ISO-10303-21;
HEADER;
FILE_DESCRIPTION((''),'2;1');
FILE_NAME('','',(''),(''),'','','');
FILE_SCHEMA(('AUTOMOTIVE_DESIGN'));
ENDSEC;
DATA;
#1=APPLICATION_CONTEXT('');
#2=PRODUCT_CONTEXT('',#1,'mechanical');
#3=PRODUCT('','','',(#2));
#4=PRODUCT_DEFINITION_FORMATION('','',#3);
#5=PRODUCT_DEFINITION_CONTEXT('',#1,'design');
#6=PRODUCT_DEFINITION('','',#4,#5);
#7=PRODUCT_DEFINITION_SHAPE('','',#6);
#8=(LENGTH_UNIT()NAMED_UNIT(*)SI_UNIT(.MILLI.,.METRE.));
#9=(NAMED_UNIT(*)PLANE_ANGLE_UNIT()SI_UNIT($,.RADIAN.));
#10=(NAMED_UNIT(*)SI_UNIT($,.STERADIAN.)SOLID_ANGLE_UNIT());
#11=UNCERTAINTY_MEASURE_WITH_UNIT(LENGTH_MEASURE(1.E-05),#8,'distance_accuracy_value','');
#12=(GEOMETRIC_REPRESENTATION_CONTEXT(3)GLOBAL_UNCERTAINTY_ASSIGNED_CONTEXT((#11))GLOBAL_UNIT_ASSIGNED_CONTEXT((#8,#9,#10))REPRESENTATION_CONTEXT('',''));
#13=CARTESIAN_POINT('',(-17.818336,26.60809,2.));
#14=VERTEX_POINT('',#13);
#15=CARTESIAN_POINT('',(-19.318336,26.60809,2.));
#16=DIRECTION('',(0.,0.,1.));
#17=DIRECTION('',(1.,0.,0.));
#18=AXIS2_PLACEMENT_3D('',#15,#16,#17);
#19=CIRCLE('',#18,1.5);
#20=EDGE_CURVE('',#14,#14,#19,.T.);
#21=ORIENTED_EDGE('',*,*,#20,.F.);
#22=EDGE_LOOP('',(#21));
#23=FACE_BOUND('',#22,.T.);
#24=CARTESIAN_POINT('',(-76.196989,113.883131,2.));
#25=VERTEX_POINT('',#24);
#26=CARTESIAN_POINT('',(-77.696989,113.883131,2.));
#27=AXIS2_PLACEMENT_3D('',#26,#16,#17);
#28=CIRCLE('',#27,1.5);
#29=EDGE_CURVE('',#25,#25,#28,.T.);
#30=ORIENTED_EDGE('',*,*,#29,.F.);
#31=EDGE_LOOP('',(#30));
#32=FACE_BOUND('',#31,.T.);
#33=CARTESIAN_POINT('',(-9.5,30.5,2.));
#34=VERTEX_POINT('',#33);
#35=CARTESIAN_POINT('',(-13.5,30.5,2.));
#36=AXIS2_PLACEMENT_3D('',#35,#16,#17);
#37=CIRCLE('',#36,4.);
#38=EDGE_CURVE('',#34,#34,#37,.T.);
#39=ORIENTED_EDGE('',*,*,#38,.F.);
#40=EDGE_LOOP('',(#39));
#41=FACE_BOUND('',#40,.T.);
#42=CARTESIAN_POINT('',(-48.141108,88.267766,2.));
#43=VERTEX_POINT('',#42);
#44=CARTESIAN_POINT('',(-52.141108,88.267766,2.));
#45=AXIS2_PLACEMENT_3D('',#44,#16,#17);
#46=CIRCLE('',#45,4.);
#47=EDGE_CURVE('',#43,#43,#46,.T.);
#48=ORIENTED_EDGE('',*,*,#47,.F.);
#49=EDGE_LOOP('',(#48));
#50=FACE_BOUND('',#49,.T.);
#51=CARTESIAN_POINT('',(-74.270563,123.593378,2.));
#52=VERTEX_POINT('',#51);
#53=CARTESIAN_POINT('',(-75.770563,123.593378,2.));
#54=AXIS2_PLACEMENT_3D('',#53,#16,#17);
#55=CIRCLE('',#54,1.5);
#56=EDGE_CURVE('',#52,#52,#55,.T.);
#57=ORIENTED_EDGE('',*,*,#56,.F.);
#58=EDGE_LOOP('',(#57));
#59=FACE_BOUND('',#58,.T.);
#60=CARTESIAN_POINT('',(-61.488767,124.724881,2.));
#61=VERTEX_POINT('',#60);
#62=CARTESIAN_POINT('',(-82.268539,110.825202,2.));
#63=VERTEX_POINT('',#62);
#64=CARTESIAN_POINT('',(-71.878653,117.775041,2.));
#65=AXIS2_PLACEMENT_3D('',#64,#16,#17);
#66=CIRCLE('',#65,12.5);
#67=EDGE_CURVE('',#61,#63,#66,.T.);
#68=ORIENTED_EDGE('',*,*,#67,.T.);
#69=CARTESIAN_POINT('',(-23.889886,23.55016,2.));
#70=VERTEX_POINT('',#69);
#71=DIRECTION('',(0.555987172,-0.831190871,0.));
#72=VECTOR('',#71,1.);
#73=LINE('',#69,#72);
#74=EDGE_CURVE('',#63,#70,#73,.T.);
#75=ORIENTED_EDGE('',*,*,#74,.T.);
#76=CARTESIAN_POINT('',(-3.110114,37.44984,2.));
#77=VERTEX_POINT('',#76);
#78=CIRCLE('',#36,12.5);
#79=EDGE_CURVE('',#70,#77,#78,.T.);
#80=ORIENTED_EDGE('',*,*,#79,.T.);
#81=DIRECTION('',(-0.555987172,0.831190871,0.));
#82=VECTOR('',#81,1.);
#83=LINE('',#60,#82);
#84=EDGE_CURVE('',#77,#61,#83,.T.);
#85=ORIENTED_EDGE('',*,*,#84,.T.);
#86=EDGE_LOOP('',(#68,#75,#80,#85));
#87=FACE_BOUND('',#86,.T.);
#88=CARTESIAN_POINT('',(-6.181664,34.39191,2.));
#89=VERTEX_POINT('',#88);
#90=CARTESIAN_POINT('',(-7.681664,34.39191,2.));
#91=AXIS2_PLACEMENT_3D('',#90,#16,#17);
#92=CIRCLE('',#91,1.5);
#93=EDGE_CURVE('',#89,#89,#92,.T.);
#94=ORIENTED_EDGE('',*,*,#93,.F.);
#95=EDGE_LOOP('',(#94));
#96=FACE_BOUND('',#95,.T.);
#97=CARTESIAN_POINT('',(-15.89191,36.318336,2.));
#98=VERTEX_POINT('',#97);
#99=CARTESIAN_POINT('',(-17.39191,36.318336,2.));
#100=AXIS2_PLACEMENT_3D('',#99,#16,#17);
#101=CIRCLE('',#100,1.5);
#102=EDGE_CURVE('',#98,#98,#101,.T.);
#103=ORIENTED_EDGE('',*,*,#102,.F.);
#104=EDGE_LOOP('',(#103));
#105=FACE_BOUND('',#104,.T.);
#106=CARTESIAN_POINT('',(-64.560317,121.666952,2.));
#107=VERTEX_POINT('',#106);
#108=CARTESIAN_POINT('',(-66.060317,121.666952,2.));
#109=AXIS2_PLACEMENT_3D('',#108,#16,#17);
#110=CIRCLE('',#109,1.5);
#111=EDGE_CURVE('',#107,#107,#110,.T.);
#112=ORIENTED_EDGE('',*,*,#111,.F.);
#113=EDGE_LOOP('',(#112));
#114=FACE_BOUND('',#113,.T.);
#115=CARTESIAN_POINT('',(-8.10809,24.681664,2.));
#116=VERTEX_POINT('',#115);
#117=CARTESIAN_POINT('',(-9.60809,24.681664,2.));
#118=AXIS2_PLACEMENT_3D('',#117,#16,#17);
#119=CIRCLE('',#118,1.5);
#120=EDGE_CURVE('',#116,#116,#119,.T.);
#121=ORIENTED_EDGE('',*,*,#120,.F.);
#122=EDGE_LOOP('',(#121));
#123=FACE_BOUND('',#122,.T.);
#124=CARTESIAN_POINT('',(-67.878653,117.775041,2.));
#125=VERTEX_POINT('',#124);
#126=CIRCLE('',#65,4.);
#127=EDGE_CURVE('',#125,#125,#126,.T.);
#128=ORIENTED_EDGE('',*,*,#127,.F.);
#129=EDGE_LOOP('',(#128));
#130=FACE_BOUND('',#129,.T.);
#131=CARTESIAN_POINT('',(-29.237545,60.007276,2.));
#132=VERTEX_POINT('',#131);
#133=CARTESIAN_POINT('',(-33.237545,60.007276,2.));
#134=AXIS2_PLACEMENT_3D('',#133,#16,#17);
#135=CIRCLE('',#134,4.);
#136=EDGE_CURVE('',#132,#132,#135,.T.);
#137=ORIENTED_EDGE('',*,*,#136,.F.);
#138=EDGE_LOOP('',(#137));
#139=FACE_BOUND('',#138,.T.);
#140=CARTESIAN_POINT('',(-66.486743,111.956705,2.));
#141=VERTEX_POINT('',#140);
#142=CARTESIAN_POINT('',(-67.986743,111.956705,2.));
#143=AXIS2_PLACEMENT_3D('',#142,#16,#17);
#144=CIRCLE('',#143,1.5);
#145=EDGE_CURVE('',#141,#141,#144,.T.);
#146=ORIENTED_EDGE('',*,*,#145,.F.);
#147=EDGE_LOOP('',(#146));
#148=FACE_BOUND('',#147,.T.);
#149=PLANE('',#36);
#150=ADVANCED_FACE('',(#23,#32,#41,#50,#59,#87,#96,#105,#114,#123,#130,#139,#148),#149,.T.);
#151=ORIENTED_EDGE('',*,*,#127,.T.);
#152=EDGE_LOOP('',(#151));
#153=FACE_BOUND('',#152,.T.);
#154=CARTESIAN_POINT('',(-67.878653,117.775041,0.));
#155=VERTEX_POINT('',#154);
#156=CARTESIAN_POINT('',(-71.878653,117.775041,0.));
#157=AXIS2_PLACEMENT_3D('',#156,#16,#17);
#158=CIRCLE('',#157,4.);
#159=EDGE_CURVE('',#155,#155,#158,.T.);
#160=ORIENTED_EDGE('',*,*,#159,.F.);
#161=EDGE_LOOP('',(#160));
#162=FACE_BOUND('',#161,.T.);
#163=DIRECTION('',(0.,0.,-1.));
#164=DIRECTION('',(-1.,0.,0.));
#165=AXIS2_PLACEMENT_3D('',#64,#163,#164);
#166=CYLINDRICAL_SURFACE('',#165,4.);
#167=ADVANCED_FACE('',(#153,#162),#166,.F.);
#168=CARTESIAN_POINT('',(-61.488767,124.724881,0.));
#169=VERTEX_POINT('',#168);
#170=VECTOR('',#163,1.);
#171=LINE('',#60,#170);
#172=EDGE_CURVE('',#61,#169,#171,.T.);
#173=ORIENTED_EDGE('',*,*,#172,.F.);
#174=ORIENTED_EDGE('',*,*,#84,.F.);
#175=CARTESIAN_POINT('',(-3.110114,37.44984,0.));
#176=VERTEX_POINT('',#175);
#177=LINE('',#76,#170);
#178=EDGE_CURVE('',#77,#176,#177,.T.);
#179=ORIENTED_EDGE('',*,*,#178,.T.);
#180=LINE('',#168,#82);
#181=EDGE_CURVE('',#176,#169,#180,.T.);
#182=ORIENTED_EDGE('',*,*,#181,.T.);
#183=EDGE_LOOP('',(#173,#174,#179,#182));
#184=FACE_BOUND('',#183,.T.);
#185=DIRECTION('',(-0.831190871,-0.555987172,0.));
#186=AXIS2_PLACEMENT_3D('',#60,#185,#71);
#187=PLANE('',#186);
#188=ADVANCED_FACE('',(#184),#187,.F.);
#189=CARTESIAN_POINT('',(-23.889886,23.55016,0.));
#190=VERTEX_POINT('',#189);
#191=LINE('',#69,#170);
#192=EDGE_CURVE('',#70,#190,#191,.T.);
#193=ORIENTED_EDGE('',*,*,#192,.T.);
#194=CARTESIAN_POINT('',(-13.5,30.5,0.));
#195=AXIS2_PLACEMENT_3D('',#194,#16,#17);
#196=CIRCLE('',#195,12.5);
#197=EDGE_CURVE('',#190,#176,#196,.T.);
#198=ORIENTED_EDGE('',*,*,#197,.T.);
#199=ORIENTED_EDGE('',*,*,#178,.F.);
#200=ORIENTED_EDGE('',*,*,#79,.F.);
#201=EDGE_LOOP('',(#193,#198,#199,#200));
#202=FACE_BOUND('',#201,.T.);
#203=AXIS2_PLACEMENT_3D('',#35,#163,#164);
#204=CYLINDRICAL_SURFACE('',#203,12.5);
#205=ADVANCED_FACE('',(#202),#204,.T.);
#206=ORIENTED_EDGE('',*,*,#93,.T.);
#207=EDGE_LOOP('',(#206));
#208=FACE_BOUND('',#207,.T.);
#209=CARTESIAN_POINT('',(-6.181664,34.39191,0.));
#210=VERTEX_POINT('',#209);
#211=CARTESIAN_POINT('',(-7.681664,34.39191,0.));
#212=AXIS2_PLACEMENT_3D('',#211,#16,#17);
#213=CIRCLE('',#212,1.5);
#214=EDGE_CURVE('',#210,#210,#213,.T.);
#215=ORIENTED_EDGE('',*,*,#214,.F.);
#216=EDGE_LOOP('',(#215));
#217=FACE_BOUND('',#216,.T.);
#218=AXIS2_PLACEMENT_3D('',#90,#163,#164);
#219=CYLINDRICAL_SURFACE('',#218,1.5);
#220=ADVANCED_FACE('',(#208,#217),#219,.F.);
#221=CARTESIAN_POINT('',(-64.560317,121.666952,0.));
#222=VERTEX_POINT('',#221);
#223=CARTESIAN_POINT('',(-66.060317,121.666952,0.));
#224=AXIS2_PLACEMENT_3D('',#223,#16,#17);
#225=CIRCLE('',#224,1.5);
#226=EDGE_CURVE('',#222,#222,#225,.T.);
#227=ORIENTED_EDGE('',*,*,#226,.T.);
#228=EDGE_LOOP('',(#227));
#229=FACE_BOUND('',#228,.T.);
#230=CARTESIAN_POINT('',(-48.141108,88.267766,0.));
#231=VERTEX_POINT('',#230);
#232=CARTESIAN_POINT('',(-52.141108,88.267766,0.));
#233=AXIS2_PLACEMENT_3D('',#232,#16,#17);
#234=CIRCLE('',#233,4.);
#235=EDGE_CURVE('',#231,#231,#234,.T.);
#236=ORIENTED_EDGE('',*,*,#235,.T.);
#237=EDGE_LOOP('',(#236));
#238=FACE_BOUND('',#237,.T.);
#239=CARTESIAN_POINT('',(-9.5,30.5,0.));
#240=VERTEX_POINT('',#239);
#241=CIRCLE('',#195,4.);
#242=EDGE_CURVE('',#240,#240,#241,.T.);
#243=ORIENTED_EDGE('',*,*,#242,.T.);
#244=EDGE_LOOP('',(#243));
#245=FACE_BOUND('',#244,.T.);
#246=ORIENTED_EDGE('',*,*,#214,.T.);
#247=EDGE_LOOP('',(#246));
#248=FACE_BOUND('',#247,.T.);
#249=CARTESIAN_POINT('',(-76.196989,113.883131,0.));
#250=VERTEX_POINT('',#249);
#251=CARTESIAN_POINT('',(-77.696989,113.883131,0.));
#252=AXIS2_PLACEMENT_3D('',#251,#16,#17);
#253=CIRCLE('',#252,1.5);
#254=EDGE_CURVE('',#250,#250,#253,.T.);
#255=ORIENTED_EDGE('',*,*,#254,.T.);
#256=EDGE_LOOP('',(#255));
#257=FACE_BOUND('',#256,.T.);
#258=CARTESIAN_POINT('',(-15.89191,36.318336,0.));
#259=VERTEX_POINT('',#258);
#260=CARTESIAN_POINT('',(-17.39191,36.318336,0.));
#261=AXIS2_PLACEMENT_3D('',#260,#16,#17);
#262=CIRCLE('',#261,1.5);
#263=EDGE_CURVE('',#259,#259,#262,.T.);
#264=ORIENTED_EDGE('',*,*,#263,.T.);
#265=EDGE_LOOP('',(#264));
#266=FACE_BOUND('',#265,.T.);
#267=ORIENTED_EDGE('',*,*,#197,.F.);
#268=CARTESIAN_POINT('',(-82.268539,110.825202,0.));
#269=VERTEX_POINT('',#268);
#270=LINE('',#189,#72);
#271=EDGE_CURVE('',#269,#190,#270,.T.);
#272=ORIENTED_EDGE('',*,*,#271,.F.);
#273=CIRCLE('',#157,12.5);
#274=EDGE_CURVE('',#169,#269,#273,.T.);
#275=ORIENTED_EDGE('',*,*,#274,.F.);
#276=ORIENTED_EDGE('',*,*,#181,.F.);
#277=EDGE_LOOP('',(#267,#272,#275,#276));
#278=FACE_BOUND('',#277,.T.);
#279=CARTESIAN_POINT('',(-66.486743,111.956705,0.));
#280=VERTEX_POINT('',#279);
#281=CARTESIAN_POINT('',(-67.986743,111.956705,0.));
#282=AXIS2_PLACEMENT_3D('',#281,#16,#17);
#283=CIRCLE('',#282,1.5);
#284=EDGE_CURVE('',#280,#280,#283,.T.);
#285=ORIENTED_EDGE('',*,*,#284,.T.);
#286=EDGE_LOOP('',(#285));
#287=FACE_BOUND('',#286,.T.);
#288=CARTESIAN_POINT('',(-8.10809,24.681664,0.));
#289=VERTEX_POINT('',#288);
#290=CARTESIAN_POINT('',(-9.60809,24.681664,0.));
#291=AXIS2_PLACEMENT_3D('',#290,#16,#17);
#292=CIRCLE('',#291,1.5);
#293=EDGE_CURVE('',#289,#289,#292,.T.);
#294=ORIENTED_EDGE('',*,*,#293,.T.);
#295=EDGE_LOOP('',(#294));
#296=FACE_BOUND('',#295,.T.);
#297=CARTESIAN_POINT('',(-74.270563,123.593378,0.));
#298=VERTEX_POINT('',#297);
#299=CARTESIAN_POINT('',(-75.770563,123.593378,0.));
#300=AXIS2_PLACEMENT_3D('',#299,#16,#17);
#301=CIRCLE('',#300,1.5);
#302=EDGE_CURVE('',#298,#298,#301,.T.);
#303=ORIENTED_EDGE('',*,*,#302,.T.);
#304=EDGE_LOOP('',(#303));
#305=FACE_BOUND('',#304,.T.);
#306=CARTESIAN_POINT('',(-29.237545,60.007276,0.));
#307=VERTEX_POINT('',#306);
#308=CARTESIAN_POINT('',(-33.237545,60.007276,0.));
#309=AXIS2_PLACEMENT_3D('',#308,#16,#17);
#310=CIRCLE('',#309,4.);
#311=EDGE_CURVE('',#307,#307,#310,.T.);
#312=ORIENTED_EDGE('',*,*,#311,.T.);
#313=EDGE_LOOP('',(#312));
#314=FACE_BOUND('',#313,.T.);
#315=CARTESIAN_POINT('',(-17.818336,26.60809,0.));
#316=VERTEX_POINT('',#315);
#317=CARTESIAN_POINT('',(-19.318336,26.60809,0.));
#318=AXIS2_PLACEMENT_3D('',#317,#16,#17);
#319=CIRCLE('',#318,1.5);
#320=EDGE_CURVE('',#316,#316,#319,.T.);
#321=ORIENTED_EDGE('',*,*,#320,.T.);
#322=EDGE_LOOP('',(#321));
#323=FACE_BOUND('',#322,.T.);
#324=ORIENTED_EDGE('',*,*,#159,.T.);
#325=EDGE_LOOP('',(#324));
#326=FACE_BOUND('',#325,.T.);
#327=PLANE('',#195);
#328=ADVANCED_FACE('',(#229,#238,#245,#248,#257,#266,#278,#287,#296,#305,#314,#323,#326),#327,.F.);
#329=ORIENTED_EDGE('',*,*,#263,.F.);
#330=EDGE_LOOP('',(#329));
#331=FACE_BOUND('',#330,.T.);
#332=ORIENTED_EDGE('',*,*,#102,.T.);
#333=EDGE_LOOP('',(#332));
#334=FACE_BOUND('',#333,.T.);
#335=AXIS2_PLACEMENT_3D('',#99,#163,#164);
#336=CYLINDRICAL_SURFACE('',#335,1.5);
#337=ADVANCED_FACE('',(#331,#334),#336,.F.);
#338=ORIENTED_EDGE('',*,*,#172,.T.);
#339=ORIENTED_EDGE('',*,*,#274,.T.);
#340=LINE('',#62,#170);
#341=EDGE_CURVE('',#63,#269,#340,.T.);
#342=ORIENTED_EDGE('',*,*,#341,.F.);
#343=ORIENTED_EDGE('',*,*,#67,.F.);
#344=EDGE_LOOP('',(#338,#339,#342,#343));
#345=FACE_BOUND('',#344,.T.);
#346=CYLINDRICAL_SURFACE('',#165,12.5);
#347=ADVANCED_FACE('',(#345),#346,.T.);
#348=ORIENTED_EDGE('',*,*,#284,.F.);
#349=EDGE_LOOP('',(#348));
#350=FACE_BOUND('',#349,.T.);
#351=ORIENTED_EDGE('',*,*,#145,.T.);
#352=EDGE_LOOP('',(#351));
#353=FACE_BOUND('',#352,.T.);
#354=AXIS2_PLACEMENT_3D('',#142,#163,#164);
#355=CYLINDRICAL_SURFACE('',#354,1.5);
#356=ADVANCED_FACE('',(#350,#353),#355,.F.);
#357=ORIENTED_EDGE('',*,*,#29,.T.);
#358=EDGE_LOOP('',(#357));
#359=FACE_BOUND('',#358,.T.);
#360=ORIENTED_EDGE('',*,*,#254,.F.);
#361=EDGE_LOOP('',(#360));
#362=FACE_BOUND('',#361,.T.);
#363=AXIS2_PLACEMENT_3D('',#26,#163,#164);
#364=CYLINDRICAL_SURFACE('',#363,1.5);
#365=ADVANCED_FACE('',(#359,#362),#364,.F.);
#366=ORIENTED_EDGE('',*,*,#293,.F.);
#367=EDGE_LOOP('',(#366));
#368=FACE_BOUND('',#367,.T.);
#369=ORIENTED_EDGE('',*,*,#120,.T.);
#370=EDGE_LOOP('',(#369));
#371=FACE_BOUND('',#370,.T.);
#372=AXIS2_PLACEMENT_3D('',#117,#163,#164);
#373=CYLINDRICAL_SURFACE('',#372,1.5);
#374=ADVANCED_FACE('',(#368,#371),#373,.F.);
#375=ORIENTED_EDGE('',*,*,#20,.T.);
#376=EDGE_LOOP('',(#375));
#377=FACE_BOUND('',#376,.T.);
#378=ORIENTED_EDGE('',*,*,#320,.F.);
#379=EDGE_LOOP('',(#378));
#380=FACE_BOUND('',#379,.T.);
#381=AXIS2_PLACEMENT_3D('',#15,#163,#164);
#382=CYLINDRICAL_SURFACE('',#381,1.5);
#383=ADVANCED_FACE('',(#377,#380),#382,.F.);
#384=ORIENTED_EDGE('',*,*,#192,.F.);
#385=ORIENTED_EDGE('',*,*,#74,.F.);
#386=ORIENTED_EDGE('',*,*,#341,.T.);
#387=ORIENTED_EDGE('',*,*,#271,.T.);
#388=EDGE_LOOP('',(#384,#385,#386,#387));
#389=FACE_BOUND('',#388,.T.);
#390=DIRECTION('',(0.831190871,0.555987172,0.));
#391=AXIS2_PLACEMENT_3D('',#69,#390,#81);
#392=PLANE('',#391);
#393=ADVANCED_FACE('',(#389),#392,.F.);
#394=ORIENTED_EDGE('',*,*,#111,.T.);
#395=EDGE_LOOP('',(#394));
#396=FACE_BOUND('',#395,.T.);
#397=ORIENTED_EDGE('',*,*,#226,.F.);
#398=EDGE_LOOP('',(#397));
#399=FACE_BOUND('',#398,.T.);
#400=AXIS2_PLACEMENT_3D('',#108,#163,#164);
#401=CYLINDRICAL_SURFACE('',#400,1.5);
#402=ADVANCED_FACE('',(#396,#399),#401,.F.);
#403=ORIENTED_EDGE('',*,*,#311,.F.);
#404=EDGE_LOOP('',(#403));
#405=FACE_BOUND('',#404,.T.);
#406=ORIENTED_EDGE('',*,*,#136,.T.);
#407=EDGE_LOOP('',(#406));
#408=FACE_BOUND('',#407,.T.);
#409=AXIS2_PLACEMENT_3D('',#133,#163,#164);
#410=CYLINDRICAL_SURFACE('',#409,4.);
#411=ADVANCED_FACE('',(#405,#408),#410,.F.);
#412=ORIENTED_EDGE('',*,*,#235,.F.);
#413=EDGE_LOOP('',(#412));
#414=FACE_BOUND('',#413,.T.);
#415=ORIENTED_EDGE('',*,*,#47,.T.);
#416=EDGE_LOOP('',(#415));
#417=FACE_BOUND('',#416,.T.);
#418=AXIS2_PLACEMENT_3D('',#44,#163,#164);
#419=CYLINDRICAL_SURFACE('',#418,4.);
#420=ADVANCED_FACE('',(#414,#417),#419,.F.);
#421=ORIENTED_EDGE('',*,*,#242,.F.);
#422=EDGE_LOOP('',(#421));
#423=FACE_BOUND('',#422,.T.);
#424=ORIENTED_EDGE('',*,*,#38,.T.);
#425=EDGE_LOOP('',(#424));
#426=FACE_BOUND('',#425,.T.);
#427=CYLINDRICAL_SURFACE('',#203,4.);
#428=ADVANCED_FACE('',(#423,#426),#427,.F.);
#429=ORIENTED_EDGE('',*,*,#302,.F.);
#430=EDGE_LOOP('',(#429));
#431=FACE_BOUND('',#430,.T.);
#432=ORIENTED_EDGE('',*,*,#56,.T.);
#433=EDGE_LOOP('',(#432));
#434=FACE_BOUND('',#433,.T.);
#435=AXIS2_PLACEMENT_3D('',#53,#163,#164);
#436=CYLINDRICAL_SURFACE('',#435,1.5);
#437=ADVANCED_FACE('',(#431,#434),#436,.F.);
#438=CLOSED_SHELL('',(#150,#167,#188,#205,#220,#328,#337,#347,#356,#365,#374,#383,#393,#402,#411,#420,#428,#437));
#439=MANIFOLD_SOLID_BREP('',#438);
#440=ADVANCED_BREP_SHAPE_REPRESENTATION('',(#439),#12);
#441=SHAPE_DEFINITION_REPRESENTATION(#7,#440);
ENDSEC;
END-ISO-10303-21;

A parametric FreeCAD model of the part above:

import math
import FreeCAD as App
import Part
import Sketcher

V = App.Vector
Q = App.Units.Quantity

doc = App.newDocument("Part")
body = doc.addObject("PartDesign::Body", "Body")

sketch1 = body.newObject("Sketcher::SketchObject", "Sketch")
sketch1.AttachmentSupport = (doc.getObject("XY_Plane"), [""])
sketch1.MapMode = "FlatFace"
sketch1.addGeometry([
    Part.LineSegment(V(-3.110114, 37.44984, 0), V(-61.488767, 124.724881, 0)),
    Part.ArcOfCircle(Part.Circle(V(-71.878653, 117.775041, 0), V(0, 0, 1), 12.5), math.radians(33.778736), math.radians(213.778736)),
    Part.LineSegment(V(-82.268539, 110.825202, 0), V(-23.889886, 23.55016, 0)),
    Part.ArcOfCircle(Part.Circle(V(-13.5, 30.5, 0), V(0, 0, 1), 12.5), math.radians(-146.221264), math.radians(33.778736)),
    Part.Circle(V(-9.60809, 24.681664, 0), V(0, 0, 1), 1.5),
    Part.Circle(V(-7.681664, 34.39191, 0), V(0, 0, 1), 1.5),
    Part.Circle(V(-13.5, 30.5, 0), V(0, 0, 1), 4),
    Part.Circle(V(-19.318336, 26.60809, 0), V(0, 0, 1), 1.5),
    Part.Circle(V(-17.39191, 36.318336, 0), V(0, 0, 1), 1.5),
    Part.Circle(V(-33.237545, 60.007276, 0), V(0, 0, 1), 4),
    Part.Circle(V(-52.141108, 88.267766, 0), V(0, 0, 1), 4),
    Part.Circle(V(-67.986743, 111.956705, 0), V(0, 0, 1), 1.5),
    Part.Circle(V(-66.060317, 121.666952, 0), V(0, 0, 1), 1.5),
    Part.Circle(V(-71.878653, 117.775041, 0), V(0, 0, 1), 4),
    Part.Circle(V(-77.696989, 113.883131, 0), V(0, 0, 1), 1.5),
    Part.Circle(V(-75.770563, 123.593378, 0), V(0, 0, 1), 1.5),
], False)
sketch1.addConstraint([
    Sketcher.Constraint("Tangent", 0, 2, 1, 1),
    Sketcher.Constraint("Tangent", 1, 2, 2, 1),
    Sketcher.Constraint("Tangent", 2, 2, 3, 1),
    Sketcher.Constraint("Tangent", 3, 2, 0, 1),
    Sketcher.Constraint("Coincident", 6, 3, 3, 3),
    Sketcher.Constraint("Coincident", 13, 3, 1, 3),
    Sketcher.Constraint("Equal", 1, 3),
    Sketcher.Constraint("Equal", 4, 5),
    Sketcher.Constraint("Equal", 5, 7),
    Sketcher.Constraint("Equal", 7, 8),
    Sketcher.Constraint("Equal", 6, 9),
    Sketcher.Constraint("Equal", 9, 10),
    Sketcher.Constraint("Equal", 8, 11),
    Sketcher.Constraint("Equal", 11, 12),
    Sketcher.Constraint("Equal", 10, 13),
    Sketcher.Constraint("Equal", 12, 14),
    Sketcher.Constraint("Equal", 14, 15),
    Sketcher.Constraint("Diameter", 4, Q("3 mm")),
    Sketcher.Constraint("Diameter", 6, Q("8 mm")),
    Sketcher.Constraint("Radius", 1, Q("12.5 mm")),
    Sketcher.Constraint("Distance", 0, Q("105 mm")),
    Sketcher.Constraint("DistanceX", 3, 3, -1, 1, Q("13.5 mm")),
    Sketcher.Constraint("DistanceY", -1, 1, 3, 3, Q("30.5 mm")),
    Sketcher.Constraint("DistanceY", -1, 1, 1, 2, Q("110.825202 mm")),
    Sketcher.Constraint("DistanceX", 10, 3, 8, 3, Q("34.749198 mm")),
    Sketcher.Constraint("DistanceX", 11, 3, 9, 3, Q("34.749198 mm")),
    Sketcher.Constraint("DistanceX", 4, 3, -1, 1, Q("9.60809 mm")),
    Sketcher.Constraint("DistanceY", -1, 1, 5, 3, Q("34.39191 mm")),
    Sketcher.Constraint("DistanceY", -1, 1, 7, 3, Q("26.60809 mm")),
    Sketcher.Constraint("DistanceX", 8, 3, -1, 1, Q("17.39191 mm")),
    Sketcher.Constraint("DistanceY", -1, 1, 12, 3, Q("121.666952 mm")),
    Sketcher.Constraint("DistanceX", 14, 3, -1, 1, Q("77.696989 mm")),
    Sketcher.Constraint("DistanceY", -1, 1, 14, 3, Q("113.883131 mm")),
    Sketcher.Constraint("DistanceX", 1, 3, 5, 3, Q("64.196989 mm")),
    Sketcher.Constraint("DistanceY", 8, 3, 9, 3, Q("23.68894 mm")),
    Sketcher.Constraint("DistanceX", 9, 3, 7, 3, Q("13.919209 mm")),
    Sketcher.Constraint("DistanceX", 9, 3, 5, 3, Q("25.555881 mm")),
    Sketcher.Constraint("DistanceY", 9, 3, 10, 3, Q("28.26049 mm")),
    Sketcher.Constraint("DistanceY", 10, 3, 11, 3, Q("23.68894 mm")),
    Sketcher.Constraint("DistanceX", 12, 3, 10, 3, Q("13.919209 mm")),
    Sketcher.Constraint("DistanceX", 15, 3, 1, 3, Q("3.89191 mm")),
    Sketcher.Constraint("DistanceY", -1, 1, 4, 3, Q("24.681664 mm")),
    Sketcher.Constraint("DistanceY", -1, 1, 8, 3, Q("36.318336 mm")),
    Sketcher.Constraint("DistanceY", -1, 1, 15, 3, Q("123.593378 mm")),
])
pad1 = body.newObject("PartDesign::Pad", "Pad")
pad1.Profile = sketch1
pad1.Length = 2

doc.recompute()
